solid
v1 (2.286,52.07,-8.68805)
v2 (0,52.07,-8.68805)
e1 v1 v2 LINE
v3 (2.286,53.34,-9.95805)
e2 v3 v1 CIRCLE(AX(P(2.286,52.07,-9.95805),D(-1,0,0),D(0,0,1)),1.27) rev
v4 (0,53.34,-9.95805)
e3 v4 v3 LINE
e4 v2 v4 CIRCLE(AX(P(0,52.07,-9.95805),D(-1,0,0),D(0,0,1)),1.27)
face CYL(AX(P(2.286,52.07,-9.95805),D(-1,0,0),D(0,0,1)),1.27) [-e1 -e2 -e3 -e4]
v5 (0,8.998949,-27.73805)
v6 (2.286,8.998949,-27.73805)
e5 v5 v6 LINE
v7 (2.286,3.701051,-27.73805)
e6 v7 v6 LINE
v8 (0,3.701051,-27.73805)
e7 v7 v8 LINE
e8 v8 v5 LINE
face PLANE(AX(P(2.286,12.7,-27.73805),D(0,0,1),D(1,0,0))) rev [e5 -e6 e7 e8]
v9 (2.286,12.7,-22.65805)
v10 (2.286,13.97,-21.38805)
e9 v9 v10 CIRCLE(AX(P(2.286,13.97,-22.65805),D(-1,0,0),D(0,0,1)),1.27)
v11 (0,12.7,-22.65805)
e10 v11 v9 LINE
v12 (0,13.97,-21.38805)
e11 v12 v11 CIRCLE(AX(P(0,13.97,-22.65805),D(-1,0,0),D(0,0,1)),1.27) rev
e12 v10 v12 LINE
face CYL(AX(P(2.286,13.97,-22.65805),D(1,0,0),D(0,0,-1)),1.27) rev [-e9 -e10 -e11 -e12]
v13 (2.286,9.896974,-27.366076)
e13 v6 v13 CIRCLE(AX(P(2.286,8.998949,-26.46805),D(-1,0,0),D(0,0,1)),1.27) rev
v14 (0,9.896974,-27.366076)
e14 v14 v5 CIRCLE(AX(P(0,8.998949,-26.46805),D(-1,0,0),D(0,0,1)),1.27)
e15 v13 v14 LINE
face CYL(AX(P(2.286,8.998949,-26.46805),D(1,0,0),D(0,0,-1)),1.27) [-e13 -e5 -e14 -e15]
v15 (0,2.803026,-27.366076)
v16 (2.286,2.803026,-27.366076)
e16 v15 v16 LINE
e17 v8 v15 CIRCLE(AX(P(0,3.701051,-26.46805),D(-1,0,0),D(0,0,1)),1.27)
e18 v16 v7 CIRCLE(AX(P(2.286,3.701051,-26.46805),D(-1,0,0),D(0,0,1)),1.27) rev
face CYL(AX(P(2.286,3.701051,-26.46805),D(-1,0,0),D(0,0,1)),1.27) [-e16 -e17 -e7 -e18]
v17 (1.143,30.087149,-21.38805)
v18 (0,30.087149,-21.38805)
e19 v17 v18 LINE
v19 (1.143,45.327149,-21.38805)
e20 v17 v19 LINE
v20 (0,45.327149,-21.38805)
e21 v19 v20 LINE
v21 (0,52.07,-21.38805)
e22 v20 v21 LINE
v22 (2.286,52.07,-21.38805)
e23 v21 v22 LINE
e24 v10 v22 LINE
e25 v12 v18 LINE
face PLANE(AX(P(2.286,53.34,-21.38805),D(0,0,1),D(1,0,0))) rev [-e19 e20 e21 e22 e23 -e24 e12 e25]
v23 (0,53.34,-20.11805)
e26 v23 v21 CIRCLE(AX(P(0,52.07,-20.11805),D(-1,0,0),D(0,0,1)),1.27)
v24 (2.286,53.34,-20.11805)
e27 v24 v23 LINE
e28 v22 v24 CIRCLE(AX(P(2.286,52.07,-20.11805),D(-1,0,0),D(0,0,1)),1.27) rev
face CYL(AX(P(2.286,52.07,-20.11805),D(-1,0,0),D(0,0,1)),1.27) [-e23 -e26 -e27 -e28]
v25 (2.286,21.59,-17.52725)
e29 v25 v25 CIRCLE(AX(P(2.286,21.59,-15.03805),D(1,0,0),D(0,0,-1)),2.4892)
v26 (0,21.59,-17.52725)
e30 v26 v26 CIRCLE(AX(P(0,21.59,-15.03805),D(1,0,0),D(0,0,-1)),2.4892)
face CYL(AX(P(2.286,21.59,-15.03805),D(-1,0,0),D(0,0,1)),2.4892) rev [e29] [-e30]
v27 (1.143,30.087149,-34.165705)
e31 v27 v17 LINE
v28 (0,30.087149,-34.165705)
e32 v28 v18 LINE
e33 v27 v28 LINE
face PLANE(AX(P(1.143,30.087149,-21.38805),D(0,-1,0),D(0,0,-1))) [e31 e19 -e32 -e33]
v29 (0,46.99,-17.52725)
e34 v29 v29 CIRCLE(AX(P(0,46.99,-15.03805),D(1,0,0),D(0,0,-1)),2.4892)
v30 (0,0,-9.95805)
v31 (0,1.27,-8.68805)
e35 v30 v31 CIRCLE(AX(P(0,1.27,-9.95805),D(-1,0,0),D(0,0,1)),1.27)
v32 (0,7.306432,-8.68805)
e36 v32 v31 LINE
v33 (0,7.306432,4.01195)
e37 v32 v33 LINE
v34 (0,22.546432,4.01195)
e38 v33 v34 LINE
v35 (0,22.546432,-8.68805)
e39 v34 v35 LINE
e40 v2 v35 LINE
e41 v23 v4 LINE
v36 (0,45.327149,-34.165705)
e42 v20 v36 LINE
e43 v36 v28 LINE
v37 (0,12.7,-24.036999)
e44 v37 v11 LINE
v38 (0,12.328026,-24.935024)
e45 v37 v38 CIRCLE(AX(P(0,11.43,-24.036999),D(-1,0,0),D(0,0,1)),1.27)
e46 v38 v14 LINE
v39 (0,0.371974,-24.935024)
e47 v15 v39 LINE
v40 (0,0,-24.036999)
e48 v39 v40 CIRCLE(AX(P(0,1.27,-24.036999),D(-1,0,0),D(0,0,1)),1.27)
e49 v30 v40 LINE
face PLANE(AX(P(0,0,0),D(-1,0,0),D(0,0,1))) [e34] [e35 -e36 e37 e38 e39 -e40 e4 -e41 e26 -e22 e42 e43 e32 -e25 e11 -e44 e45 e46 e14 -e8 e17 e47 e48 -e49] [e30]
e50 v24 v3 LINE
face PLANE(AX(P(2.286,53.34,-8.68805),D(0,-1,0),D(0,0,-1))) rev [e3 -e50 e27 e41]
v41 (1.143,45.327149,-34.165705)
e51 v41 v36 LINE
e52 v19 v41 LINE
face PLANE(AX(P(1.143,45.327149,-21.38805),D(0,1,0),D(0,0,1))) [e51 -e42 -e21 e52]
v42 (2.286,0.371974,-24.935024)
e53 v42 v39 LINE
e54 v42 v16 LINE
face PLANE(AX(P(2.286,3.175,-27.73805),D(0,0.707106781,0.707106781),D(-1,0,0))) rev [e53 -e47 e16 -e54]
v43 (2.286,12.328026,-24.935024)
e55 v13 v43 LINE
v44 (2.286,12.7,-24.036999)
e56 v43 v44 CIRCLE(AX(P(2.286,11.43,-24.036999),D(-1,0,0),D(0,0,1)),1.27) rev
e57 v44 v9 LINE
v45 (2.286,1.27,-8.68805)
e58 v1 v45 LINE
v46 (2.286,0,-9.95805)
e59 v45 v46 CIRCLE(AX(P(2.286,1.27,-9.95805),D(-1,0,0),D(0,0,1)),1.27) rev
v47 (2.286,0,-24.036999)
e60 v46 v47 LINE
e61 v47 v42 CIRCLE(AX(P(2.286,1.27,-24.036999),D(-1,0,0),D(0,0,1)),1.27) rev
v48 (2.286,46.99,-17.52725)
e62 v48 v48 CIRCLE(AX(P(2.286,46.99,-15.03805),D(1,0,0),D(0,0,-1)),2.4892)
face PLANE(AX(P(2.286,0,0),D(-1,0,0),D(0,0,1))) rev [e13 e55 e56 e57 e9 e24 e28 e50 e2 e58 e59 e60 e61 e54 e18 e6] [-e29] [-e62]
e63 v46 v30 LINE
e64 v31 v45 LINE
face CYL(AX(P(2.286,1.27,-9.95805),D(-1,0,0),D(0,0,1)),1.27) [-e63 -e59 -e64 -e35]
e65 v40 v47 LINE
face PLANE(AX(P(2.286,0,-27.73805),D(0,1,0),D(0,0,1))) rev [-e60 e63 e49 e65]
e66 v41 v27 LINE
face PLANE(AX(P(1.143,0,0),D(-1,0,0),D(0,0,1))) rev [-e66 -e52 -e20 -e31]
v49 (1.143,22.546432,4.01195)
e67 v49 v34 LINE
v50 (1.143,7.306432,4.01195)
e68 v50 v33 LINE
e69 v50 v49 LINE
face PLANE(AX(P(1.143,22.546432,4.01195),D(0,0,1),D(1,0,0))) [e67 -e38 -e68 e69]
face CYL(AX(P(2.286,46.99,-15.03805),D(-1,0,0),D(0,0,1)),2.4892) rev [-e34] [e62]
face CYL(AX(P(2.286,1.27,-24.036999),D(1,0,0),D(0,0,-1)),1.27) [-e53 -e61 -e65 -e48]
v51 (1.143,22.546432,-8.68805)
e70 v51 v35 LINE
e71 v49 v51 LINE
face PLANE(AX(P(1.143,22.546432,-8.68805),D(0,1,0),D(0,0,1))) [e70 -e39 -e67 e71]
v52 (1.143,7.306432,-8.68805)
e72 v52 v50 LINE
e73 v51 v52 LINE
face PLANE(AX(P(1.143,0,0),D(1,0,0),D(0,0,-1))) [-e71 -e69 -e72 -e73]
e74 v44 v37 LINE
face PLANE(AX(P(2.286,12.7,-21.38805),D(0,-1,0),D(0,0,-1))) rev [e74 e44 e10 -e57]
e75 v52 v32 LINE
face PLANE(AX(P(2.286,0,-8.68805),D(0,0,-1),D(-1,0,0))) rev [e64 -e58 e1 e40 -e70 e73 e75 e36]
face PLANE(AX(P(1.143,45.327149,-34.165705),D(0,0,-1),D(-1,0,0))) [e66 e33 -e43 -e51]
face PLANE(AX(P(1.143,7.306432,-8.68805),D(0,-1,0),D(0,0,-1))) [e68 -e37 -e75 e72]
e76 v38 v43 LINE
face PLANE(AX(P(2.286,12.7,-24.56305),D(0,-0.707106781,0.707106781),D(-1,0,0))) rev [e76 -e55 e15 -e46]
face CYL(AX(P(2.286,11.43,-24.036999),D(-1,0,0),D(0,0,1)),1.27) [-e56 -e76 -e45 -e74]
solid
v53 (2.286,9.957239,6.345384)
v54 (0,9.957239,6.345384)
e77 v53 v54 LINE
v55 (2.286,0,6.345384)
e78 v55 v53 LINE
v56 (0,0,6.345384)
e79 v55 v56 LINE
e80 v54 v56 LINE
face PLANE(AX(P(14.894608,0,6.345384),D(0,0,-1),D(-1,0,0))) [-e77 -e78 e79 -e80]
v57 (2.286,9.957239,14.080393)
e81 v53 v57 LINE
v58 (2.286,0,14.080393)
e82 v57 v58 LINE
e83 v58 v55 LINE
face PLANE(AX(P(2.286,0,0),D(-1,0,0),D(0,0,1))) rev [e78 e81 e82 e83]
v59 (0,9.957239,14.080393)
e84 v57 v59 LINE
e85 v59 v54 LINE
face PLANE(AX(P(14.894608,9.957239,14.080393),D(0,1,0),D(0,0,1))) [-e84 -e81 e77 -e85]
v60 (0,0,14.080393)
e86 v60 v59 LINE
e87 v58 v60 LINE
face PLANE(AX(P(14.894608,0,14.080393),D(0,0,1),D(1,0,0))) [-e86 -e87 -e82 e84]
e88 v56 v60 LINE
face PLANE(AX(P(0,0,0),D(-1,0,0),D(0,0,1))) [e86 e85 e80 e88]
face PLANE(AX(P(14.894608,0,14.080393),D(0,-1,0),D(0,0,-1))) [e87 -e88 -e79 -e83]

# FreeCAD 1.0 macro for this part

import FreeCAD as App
import Part
import Sketcher
Q = App.Units.Quantity


def edges_at(feature, points):
    """Names of the edges that pass closest to the given points."""
    edges = feature.Shape.Edges
    near = lambda p: min(range(len(edges)), key=lambda i: edges[i].distToShape(Part.Vertex(*p))[0])
    return sorted({f"Edge{near(p) + 1}" for p in points})

doc = App.newDocument("Part")
body = doc.addObject("PartDesign::Body", "Body")

# Sketch on YZ plane
sketch1 = body.newObject("Sketcher::SketchObject", "Sketch")
sketch1.AttachmentSupport = (doc.getObject("YZ_Plane"), [""])
sketch1.MapMode = "FlatFace"
sketch1.addGeometry(Part.LineSegment(App.Vector(53.34, -8.68805, 0), App.Vector(0, -8.68805, 0)), False)
sketch1.addGeometry(Part.LineSegment(App.Vector(0, -8.68805, 0), App.Vector(0, -27.73805, 0)), False)
sketch1.addGeometry(Part.LineSegment(App.Vector(0, -27.73805, 0), App.Vector(12.7, -27.73805, 0)), False)
sketch1.addGeometry(Part.LineSegment(App.Vector(12.7, -27.73805, 0), App.Vector(12.7, -21.38805, 0)), False)
sketch1.addGeometry(Part.LineSegment(App.Vector(12.7, -21.38805, 0), App.Vector(53.34, -21.38805, 0)), False)
sketch1.addGeometry(Part.LineSegment(App.Vector(53.34, -21.38805, 0), App.Vector(53.34, -8.68805, 0)), False)
sketch1.addGeometry(Part.Circle(App.Vector(21.59, -15.03805, 0), App.Vector(0, 0, 1), 2.4892), False)
sketch1.addGeometry(Part.Circle(App.Vector(46.99, -15.03805, 0), App.Vector(0, 0, 1), 2.4892), False)
sketch1.addConstraint(Sketcher.Constraint("Coincident", 0, 2, 1, 1))
sketch1.addConstraint(Sketcher.Constraint("Coincident", 1, 2, 2, 1))
sketch1.addConstraint(Sketcher.Constraint("Coincident", 2, 2, 3, 1))
sketch1.addConstraint(Sketcher.Constraint("Coincident", 3, 2, 4, 1))
sketch1.addConstraint(Sketcher.Constraint("Coincident", 4, 2, 5, 1))
sketch1.addConstraint(Sketcher.Constraint("Coincident", 5, 2, 0, 1))
sketch1.addConstraint(Sketcher.Constraint("Horizontal", 0))
sketch1.addConstraint(Sketcher.Constraint("Vertical", 1))
sketch1.addConstraint(Sketcher.Constraint("Horizontal", 2))
sketch1.addConstraint(Sketcher.Constraint("Vertical", 3))
sketch1.addConstraint(Sketcher.Constraint("Horizontal", 4))
sketch1.addConstraint(Sketcher.Constraint("Vertical", 5))
sketch1.addConstraint(Sketcher.Constraint("Equal", 6, 7))
sketch1.addConstraint(Sketcher.Constraint("PointOnObject", 0, 2, -2))
sketch1.addConstraint(Sketcher.Constraint("Horizontal", 6, 3, 7, 3))
sketch1.addConstraint(Sketcher.Constraint("Equal", 2, 5))
sketch1.addConstraint(Sketcher.Constraint("Diameter", 6, Q("0.196 in")))
sketch1.addConstraint(Sketcher.Constraint("DistanceX", 0, 2, 0, 1, Q("2.1 in")))
sketch1.addConstraint(Sketcher.Constraint("DistanceX", 2, 1, 2, 2, Q("0.5 in")))
sketch1.addConstraint(Sketcher.Constraint("DistanceX", 6, 3, 7, 3, Q("1 in")))
sketch1.addConstraint(Sketcher.Constraint("DistanceY", 1, 2, 1, 1, Q("0.75 in")))
sketch1.addConstraint(Sketcher.Constraint("DistanceY", 1, 2, 6, 3, Q("0.5 in")))
sketch1.addConstraint(Sketcher.Constraint("DistanceX", -1, 1, 6, 3, Q("0.85 in")))
sketch1.addConstraint(Sketcher.Constraint("DistanceY", 6, 3, -1, 1, Q("15.03805 mm")))
pad1 = body.newObject("PartDesign::Pad", "Pad")
pad1.Profile = sketch1
pad1.Length = Q("0.09 in")
doc.recompute()

chamfer = body.newObject("PartDesign::Chamfer", "Chamfer")
chamfer.Base = (pad1, edges_at(pad1, [(1.143, 12.7, -27.738), (1.143, 0, -27.738)]))
chamfer.Size = Q("0.125 in")
doc.recompute()

fillet = body.newObject("PartDesign::Fillet", "Fillet")
fillet.Base = (chamfer, edges_at(chamfer, [
    (1.143, 0, -8.688),
    (1.143, 53.34, -8.688),
    (1.143, 53.34, -21.388),
    (1.143, 12.7, -21.388),
    (1.143, 9.525, -27.738),
    (1.143, 3.175, -27.738),
    (1.143, 0, -24.563),
    (1.143, 12.7, -24.563),
]))
fillet.Radius = Q("0.05 in")

# Sketch on YZ plane
sketch2 = body.newObject("Sketcher::SketchObject", "Sketch001")
sketch2.AttachmentSupport = (doc.getObject("YZ_Plane"), [""])
sketch2.MapMode = "FlatFace"
sketch2.addGeometry(Part.LineSegment(App.Vector(22.546432, -8.68805, 0), App.Vector(7.306432, -8.68805, 0)), False)
sketch2.addGeometry(Part.LineSegment(App.Vector(7.306432, -8.68805, 0), App.Vector(7.306432, 4.01195, 0)), False)
sketch2.addGeometry(Part.LineSegment(App.Vector(7.306432, 4.01195, 0), App.Vector(22.546432, 4.01195, 0)), False)
sketch2.addGeometry(Part.LineSegment(App.Vector(22.546432, 4.01195, 0), App.Vector(22.546432, -8.68805, 0)), False)
sketch2.addGeometry(Part.LineSegment(App.Vector(45.327149, -34.165705, 0), App.Vector(30.087149, -34.165705, 0)), False)
sketch2.addGeometry(Part.LineSegment(App.Vector(30.087149, -34.165705, 0), App.Vector(30.087149, -21.38805, 0)), False)
sketch2.addGeometry(Part.LineSegment(App.Vector(30.087149, -21.38805, 0), App.Vector(45.327149, -21.38805, 0)), False)
sketch2.addGeometry(Part.LineSegment(App.Vector(45.327149, -21.38805, 0), App.Vector(45.327149, -34.165705, 0)), False)
sketch2.addConstraint(Sketcher.Constraint("Coincident", 0, 2, 1, 1))
sketch2.addConstraint(Sketcher.Constraint("Coincident", 1, 2, 2, 1))
sketch2.addConstraint(Sketcher.Constraint("Coincident", 2, 2, 3, 1))
sketch2.addConstraint(Sketcher.Constraint("Coincident", 3, 2, 0, 1))
sketch2.addConstraint(Sketcher.Constraint("Coincident", 4, 2, 5, 1))
sketch2.addConstraint(Sketcher.Constraint("Coincident", 5, 2, 6, 1))
sketch2.addConstraint(Sketcher.Constraint("Coincident", 6, 2, 7, 1))
sketch2.addConstraint(Sketcher.Constraint("Coincident", 7, 2, 4, 1))
sketch2.addConstraint(Sketcher.Constraint("Horizontal", 0))
sketch2.addConstraint(Sketcher.Constraint("Vertical", 1))
sketch2.addConstraint(Sketcher.Constraint("Horizontal", 2))
sketch2.addConstraint(Sketcher.Constraint("Vertical", 3))
sketch2.addConstraint(Sketcher.Constraint("Horizontal", 4))
sketch2.addConstraint(Sketcher.Constraint("Vertical", 5))
sketch2.addConstraint(Sketcher.Constraint("Horizontal", 6))
sketch2.addConstraint(Sketcher.Constraint("Vertical", 7))
sketch2.addConstraint(Sketcher.Constraint("Equal", 2, 4))
sketch2.addConstraint(Sketcher.Constraint("DistanceX", 0, 2, 0, 1, Q("0.6 in")))
sketch2.addConstraint(Sketcher.Constraint("DistanceY", 1, 1, 1, 2, Q("0.5 in")))
sketch2.addConstraint(Sketcher.Constraint("DistanceY", 5, 2, 2, 2, Q("1 in")))
sketch2.addConstraint(Sketcher.Constraint("DistanceY", 5, 1, 5, 2, Q("12.777655 mm")))
sketch2.addConstraint(Sketcher.Constraint("DistanceY", 0, 2, -1, 1, Q("8.68805 mm")))
sketch2.addConstraint(Sketcher.Constraint("DistanceX", -1, 1, 4, 2, Q("30.087149 mm")))
sketch2.addConstraint(Sketcher.Constraint("DistanceX", -1, 1, 0, 2, Q("7.306432 mm")))
pad2 = body.newObject("PartDesign::Pad", "Pad001")
pad2.Profile = sketch2
pad2.Length = Q("0.045 in")
body2 = doc.addObject("PartDesign::Body", "Body001")

# Sketch on YZ plane
sketch3 = body2.newObject("Sketcher::SketchObject", "Sketch002")
sketch3.AttachmentSupport = (doc.getObject("YZ_Plane001"), [""])
sketch3.MapMode = "FlatFace"
sketch3.addGeometry(Part.LineSegment(App.Vector(9.957239, 6.345384, 0), App.Vector(0, 6.345384, 0)), False)
sketch3.addGeometry(Part.LineSegment(App.Vector(0, 6.345384, 0), App.Vector(0, 14.080393, 0)), False)
sketch3.addGeometry(Part.LineSegment(App.Vector(0, 14.080393, 0), App.Vector(9.957239, 14.080393, 0)), False)
sketch3.addGeometry(Part.LineSegment(App.Vector(9.957239, 14.080393, 0), App.Vector(9.957239, 6.345384, 0)), False)
sketch3.addConstraint(Sketcher.Constraint("Coincident", 0, 2, 1, 1))
sketch3.addConstraint(Sketcher.Constraint("Coincident", 1, 2, 2, 1))
sketch3.addConstraint(Sketcher.Constraint("Coincident", 2, 2, 3, 1))
sketch3.addConstraint(Sketcher.Constraint("Coincident", 3, 2, 0, 1))
sketch3.addConstraint(Sketcher.Constraint("Horizontal", 0))
sketch3.addConstraint(Sketcher.Constraint("Vertical", 1))
sketch3.addConstraint(Sketcher.Constraint("Horizontal", 2))
sketch3.addConstraint(Sketcher.Constraint("Vertical", 3))
sketch3.addConstraint(Sketcher.Constraint("PointOnObject", 0, 2, -2))
sketch3.addConstraint(Sketcher.Constraint("DistanceX", 0, 2, 0, 1, Q("9.957239 mm")))
sketch3.addConstraint(Sketcher.Constraint("DistanceY", 1, 1, 1, 2, Q("7.735009 mm")))
sketch3.addConstraint(Sketcher.Constraint("DistanceY", -1, 1, 0, 2, Q("6.345384 mm")))
pad3 = body2.newObject("PartDesign::Pad", "Pad002")
pad3.Profile = sketch3
pad3.Length = Q("0.09 in")

doc.recompute()
